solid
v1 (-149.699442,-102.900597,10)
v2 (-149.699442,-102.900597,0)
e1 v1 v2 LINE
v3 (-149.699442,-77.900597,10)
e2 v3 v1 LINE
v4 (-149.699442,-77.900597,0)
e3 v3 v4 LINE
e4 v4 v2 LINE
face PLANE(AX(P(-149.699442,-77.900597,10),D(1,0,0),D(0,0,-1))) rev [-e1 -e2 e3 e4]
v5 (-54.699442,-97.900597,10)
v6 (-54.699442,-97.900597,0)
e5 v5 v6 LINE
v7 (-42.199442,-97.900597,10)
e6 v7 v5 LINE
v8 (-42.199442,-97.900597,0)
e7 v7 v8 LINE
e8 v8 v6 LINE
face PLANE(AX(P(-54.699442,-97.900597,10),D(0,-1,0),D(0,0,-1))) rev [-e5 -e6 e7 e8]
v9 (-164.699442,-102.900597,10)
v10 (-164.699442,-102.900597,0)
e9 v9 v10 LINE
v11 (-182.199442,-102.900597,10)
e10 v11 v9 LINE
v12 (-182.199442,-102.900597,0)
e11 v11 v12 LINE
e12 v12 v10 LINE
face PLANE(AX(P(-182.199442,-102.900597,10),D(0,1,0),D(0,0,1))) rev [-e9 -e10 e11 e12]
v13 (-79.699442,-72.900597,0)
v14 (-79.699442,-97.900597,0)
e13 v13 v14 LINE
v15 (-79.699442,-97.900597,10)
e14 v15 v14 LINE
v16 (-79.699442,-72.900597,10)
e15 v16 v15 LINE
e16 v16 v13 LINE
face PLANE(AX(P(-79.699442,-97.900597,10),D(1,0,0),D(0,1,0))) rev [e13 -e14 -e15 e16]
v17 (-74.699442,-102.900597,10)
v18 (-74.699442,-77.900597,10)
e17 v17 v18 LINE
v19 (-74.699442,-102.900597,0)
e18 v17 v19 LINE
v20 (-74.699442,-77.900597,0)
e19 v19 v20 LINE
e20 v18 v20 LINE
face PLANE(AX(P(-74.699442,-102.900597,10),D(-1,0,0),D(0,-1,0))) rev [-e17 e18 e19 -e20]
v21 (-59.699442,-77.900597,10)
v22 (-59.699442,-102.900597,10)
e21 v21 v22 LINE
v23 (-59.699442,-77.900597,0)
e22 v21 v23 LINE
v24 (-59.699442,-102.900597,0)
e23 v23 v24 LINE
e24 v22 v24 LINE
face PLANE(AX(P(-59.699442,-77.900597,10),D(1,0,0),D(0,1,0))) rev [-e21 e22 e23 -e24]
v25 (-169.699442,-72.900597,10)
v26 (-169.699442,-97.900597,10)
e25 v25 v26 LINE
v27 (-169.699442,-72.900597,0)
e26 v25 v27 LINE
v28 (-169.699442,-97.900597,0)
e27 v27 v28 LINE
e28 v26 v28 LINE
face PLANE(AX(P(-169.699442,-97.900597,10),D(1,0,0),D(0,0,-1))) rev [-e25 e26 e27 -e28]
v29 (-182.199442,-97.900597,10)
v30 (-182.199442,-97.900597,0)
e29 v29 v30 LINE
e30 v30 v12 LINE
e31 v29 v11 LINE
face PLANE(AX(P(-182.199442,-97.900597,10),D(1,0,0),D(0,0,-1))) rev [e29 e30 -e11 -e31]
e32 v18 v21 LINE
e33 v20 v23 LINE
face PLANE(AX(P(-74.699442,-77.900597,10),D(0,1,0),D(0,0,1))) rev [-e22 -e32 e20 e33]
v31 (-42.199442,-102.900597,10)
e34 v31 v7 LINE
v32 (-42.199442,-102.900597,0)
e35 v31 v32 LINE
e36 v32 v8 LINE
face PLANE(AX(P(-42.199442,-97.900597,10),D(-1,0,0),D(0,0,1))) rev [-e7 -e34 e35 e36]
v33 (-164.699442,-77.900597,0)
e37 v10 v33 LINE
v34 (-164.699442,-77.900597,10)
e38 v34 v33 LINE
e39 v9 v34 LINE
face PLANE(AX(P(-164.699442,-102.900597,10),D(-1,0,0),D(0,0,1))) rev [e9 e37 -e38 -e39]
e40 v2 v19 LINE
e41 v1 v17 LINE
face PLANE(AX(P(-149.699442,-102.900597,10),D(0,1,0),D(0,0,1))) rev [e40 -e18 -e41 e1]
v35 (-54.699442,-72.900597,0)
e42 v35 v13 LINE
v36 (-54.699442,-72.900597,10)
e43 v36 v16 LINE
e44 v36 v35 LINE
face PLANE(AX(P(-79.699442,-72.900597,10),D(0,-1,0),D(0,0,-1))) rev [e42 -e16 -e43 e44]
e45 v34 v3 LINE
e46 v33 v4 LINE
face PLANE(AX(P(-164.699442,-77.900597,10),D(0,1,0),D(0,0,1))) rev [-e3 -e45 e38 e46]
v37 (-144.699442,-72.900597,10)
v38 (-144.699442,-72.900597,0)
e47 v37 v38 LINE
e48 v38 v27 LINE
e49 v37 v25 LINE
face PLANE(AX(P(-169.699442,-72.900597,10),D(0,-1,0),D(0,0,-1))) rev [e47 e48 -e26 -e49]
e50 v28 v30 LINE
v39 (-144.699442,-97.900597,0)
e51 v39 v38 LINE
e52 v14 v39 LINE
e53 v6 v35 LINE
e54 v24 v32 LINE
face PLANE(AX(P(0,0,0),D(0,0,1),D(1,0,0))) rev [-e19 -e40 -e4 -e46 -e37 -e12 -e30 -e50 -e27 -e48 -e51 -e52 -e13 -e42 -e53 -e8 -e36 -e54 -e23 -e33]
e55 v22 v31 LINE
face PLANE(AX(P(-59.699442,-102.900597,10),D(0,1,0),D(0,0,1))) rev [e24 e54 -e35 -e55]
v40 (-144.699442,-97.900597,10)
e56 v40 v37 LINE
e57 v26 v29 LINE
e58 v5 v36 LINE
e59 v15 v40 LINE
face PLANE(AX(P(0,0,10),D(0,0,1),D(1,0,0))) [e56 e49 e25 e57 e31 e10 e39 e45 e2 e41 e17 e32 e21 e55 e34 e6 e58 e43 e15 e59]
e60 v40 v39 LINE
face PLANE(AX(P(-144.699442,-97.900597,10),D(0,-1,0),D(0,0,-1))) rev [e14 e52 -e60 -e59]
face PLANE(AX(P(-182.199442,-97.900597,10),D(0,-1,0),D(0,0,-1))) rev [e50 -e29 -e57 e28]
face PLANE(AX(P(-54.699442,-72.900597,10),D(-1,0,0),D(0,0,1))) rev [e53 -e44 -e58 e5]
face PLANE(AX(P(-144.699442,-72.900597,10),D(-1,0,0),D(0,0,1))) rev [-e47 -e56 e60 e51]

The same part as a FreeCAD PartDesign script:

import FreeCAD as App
import Part
import Sketcher
from FreeCAD import Vector

doc = App.newDocument("Part")
body = doc.addObject("PartDesign::Body", "Body")

# Sketch on XY plane
sketch1 = body.newObject("Sketcher::SketchObject", "Sketch")
sketch1.AttachmentSupport = (doc.getObject("XY_Plane"), [""])
sketch1.MapMode = "FlatFace"
sketch1.addGeometry(Part.LineSegment(Vector(-170, -98, 0), Vector(-182, -98, 0)), False)
sketch1.addGeometry(Part.LineSegment(Vector(-182, -98, 0), Vector(-182, -103, 0)), False)
sketch1.addGeometry(Part.LineSegment(Vector(-182, -103, 0), Vector(-165, -103, 0)), False)
sketch1.addGeometry(Part.LineSegment(Vector(-165, -103, 0), Vector(-165, -78, 0)), False)
sketch1.addGeometry(Part.LineSegment(Vector(-165, -78, 0), Vector(-150, -78, 0)), False)
sketch1.addGeometry(Part.LineSegment(Vector(-150, -78, 0), Vector(-150, -103, 0)), False)
sketch1.addGeometry(Part.LineSegment(Vector(-150, -103, 0), Vector(-75, -103, 0)), False)
sketch1.addGeometry(Part.LineSegment(Vector(-75, -103, 0), Vector(-75, -78, 0)), False)
sketch1.addGeometry(Part.LineSegment(Vector(-75, -78, 0), Vector(-60, -78, 0)), False)
sketch1.addGeometry(Part.LineSegment(Vector(-60, -78, 0), Vector(-60, -103, 0)), False)
sketch1.addGeometry(Part.LineSegment(Vector(-60, -103, 0), Vector(-42, -103, 0)), False)
sketch1.addGeometry(Part.LineSegment(Vector(-42, -103, 0), Vector(-42, -98, 0)), False)
sketch1.addGeometry(Part.LineSegment(Vector(-42, -98, 0), Vector(-55, -98, 0)), False)
sketch1.addGeometry(Part.LineSegment(Vector(-55, -98, 0), Vector(-55, -73, 0)), False)
sketch1.addGeometry(Part.LineSegment(Vector(-55, -73, 0), Vector(-80, -73, 0)), False)
sketch1.addGeometry(Part.LineSegment(Vector(-80, -73, 0), Vector(-80, -98, 0)), False)
sketch1.addGeometry(Part.LineSegment(Vector(-80, -98, 0), Vector(-145, -98, 0)), False)
sketch1.addGeometry(Part.LineSegment(Vector(-145, -98, 0), Vector(-145, -73, 0)), False)
sketch1.addGeometry(Part.LineSegment(Vector(-145, -73, 0), Vector(-170, -73, 0)), False)
sketch1.addGeometry(Part.LineSegment(Vector(-170, -73, 0), Vector(-170, -98, 0)), False)
sketch1.addConstraint(Sketcher.Constraint("Coincident", 0, 2, 1, 1))
sketch1.addConstraint(Sketcher.Constraint("Coincident", 1, 2, 2, 1))
sketch1.addConstraint(Sketcher.Constraint("Coincident", 2, 2, 3, 1))
sketch1.addConstraint(Sketcher.Constraint("Coincident", 3, 2, 4, 1))
sketch1.addConstraint(Sketcher.Constraint("Coincident", 4, 2, 5, 1))
sketch1.addConstraint(Sketcher.Constraint("Coincident", 5, 2, 6, 1))
sketch1.addConstraint(Sketcher.Constraint("Coincident", 6, 2, 7, 1))
sketch1.addConstraint(Sketcher.Constraint("Coincident", 7, 2, 8, 1))
sketch1.addConstraint(Sketcher.Constraint("Coincident", 8, 2, 9, 1))
sketch1.addConstraint(Sketcher.Constraint("Coincident", 9, 2, 10, 1))
sketch1.addConstraint(Sketcher.Constraint("Coincident", 10, 2, 11, 1))
sketch1.addConstraint(Sketcher.Constraint("Coincident", 11, 2, 12, 1))
sketch1.addConstraint(Sketcher.Constraint("Coincident", 12, 2, 13, 1))
sketch1.addConstraint(Sketcher.Constraint("Coincident", 13, 2, 14, 1))
sketch1.addConstraint(Sketcher.Constraint("Coincident", 14, 2, 15, 1))
sketch1.addConstraint(Sketcher.Constraint("Coincident", 15, 2, 16, 1))
sketch1.addConstraint(Sketcher.Constraint("Coincident", 16, 2, 17, 1))
sketch1.addConstraint(Sketcher.Constraint("Coincident", 17, 2, 18, 1))
sketch1.addConstraint(Sketcher.Constraint("Coincident", 18, 2, 19, 1))
sketch1.addConstraint(Sketcher.Constraint("Coincident", 19, 2, 0, 1))
sketch1.addConstraint(Sketcher.Constraint("Horizontal", 0))
sketch1.addConstraint(Sketcher.Constraint("Vertical", 1))
sketch1.addConstraint(Sketcher.Constraint("Horizontal", 2))
sketch1.addConstraint(Sketcher.Constraint("Vertical", 3))
sketch1.addConstraint(Sketcher.Constraint("Horizontal", 4))
sketch1.addConstraint(Sketcher.Constraint("Vertical", 5))
sketch1.addConstraint(Sketcher.Constraint("Horizontal", 6))
sketch1.addConstraint(Sketcher.Constraint("Vertical", 7))
sketch1.addConstraint(Sketcher.Constraint("Horizontal", 8))
sketch1.addConstraint(Sketcher.Constraint("Vertical", 9))
sketch1.addConstraint(Sketcher.Constraint("Horizontal", 10))
sketch1.addConstraint(Sketcher.Constraint("Vertical", 11))
sketch1.addConstraint(Sketcher.Constraint("Horizontal", 12))
sketch1.addConstraint(Sketcher.Constraint("Vertical", 13))
sketch1.addConstraint(Sketcher.Constraint("Horizontal", 14))
sketch1.addConstraint(Sketcher.Constraint("Vertical", 15))
sketch1.addConstraint(Sketcher.Constraint("Horizontal", 16))
sketch1.addConstraint(Sketcher.Constraint("Vertical", 17))
sketch1.addConstraint(Sketcher.Constraint("Horizontal", 18))
sketch1.addConstraint(Sketcher.Constraint("Vertical", 19))
sketch1.addConstraint(Sketcher.Constraint("Horizontal", 2, 2, 5, 2))
sketch1.addConstraint(Sketcher.Constraint("Horizontal", 4, 2, 7, 2))
sketch1.addConstraint(Sketcher.Constraint("Horizontal", 6, 2, 9, 2))
sketch1.addConstraint(Sketcher.Constraint("Horizontal", 0, 2, 11, 2))
sketch1.addConstraint(Sketcher.Constraint("Horizontal", 12, 2, 15, 2))
sketch1.addConstraint(Sketcher.Constraint("Horizontal", 14, 2, 17, 2))
sketch1.addConstraint(Sketcher.Constraint("Equal", 4, 8))
sketch1.addConstraint(Sketcher.Constraint("Equal", 2, 10))
sketch1.addConstraint(Sketcher.Constraint("Equal", 0, 12))
sketch1.addConstraint(Sketcher.Constraint("Equal", 14, 18))
sketch1.addConstraint(Sketcher.Constraint("Equal", 18, 3))
sketch1.addConstraint(Sketcher.Constraint("Equal", 9, 13))
sketch1.addConstraint(Sketcher.Constraint("DistanceX", 4, 1, 4, 2, 15.0))
sketch1.addConstraint(Sketcher.Constraint("DistanceX", 6, 1, 6, 2, 75.0))
sketch1.addConstraint(Sketcher.Constraint("DistanceX", 14, 2, 14, 1, 25.0))
sketch1.addConstraint(Sketcher.Constraint("DistanceX", 16, 2, 16, 1, 65.0))
sketch1.addConstraint(Sketcher.Constraint("DistanceY", 1, 2, 1, 1, 5.0))
sketch1.addConstraint(Sketcher.Constraint("DistanceX", 0, 2, 0, 1, 12.5))
sketch1.addConstraint(Sketcher.Constraint("DistanceX", 0, 2, -1, 1, 182.199442))
sketch1.addConstraint(Sketcher.Constraint("DistanceY", 0, 2, -1, 1, 97.900597))
pad1 = body.newObject("PartDesign::Pad", "Pad")
pad1.Profile = sketch1
pad1.Length = 10

doc.recompute()
